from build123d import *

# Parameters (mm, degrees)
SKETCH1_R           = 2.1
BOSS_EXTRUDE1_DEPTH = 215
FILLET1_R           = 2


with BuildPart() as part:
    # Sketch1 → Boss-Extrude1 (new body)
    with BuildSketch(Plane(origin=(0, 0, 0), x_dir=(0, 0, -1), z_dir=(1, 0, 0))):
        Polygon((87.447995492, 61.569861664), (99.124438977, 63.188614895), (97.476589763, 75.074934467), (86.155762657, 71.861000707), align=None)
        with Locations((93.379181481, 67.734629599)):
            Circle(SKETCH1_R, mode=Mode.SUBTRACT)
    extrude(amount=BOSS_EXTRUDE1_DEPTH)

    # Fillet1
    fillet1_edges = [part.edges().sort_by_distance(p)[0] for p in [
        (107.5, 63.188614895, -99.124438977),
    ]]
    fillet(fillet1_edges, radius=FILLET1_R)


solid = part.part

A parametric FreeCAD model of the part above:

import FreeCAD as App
import Part
import Sketcher
from FreeCAD import Vector


def edges_at(feature, points):
    """Names of the edges that pass closest to the given points."""
    edges = feature.Shape.Edges
    near = lambda p: min(range(len(edges)), key=lambda i: edges[i].distToShape(Part.Vertex(*p))[0])
    return sorted({f"Edge{near(p) + 1}" for p in points})


def add_polygon(sketch, points):
    """Adds a closed chain of lines whose ends are joined by coincident constraints."""
    first, n = sketch.GeometryCount, len(points)
    for a, b in zip(points, points[1:] + points[:1]):
        sketch.addGeometry(Part.LineSegment(App.Vector(*a, 0), App.Vector(*b, 0)), False)
    for i in range(n):
        sketch.addConstraint(Sketcher.Constraint("Coincident", first + i, 2, first + (i + 1) % n, 1))

doc = App.newDocument("Part")
params = doc.addObject("Spreadsheet::Sheet", "Params")
for row, (alias, value) in enumerate([
    ("sketch1_diameter", "4.2 mm"),
    ("sketch1_length", "12 mm"),
    ("pad1_length", "215 mm"),
    ("fillet_radius", "2 mm"),
], start=1):
    params.set(f"A{row}", alias)
    params.set(f"B{row}", "=" + value)
    params.setAlias(f"B{row}", alias)

body = doc.addObject("PartDesign::Body", "Body")

# Sketch on YZ plane
sketch1 = doc.addObject("Sketcher::SketchObject", "Sketch")
body.addObject(sketch1)
sketch1.AttachmentSupport = (doc.YZ_Plane, [""])
sketch1.MapMode = "FlatFace"
add_polygon(sketch1, [(61.569862, -87.447995), (63.188615, -99.124439), (75.074934, -97.47659), (71.861001, -86.155763)])  # lines 0-3
sketch1.addGeometry(Part.Circle(Vector(67.73463, -93.379181, 0), Vector(0, 0, 1), 2.1), False)  # 4
sketch1.addConstraint([
    Sketcher.Constraint("Perpendicular", 0, 1),
    Sketcher.Constraint("Diameter", 4, 4.2),
    Sketcher.Constraint("Distance", 1, 12.0),
    Sketcher.Constraint("DistanceX", -1, 1, 2, 2, 71.861001),
    Sketcher.Constraint("Distance", 2, 11.768199),
    Sketcher.Constraint("DistanceX", -1, 1, 4, 3, 67.73463),
    Sketcher.Constraint("DistanceY", 4, 3, -1, 1, 93.379181),
    Sketcher.Constraint("DistanceY", 0, 2, -1, 1, 99.124439),
    Sketcher.Constraint("DistanceY", 1, 2, -1, 1, 97.47659),
    Sketcher.Constraint("DistanceX", -1, 1, 3, 2, 61.569862),
    Sketcher.Constraint("DistanceY", 4, 3, 2, 2, 7.223419),
])
sketch1.setExpression("Constraints[5]", "Params.sketch1_diameter")
sketch1.setExpression("Constraints[6]", "Params.sketch1_length")
pad1 = doc.addObject("PartDesign::Pad", "Pad")
body.addObject(pad1)
pad1.Profile = sketch1
pad1.setExpression("Length", "Params.pad1_length")
doc.recompute()

fillet = doc.addObject("PartDesign::Fillet", "Fillet")
body.addObject(fillet)
fillet.Base = (pad1, edges_at(pad1, [(107.5, 63.189, -99.124)]))
fillet.setExpression("Radius", "Params.fillet_radius")

doc.recompute()
